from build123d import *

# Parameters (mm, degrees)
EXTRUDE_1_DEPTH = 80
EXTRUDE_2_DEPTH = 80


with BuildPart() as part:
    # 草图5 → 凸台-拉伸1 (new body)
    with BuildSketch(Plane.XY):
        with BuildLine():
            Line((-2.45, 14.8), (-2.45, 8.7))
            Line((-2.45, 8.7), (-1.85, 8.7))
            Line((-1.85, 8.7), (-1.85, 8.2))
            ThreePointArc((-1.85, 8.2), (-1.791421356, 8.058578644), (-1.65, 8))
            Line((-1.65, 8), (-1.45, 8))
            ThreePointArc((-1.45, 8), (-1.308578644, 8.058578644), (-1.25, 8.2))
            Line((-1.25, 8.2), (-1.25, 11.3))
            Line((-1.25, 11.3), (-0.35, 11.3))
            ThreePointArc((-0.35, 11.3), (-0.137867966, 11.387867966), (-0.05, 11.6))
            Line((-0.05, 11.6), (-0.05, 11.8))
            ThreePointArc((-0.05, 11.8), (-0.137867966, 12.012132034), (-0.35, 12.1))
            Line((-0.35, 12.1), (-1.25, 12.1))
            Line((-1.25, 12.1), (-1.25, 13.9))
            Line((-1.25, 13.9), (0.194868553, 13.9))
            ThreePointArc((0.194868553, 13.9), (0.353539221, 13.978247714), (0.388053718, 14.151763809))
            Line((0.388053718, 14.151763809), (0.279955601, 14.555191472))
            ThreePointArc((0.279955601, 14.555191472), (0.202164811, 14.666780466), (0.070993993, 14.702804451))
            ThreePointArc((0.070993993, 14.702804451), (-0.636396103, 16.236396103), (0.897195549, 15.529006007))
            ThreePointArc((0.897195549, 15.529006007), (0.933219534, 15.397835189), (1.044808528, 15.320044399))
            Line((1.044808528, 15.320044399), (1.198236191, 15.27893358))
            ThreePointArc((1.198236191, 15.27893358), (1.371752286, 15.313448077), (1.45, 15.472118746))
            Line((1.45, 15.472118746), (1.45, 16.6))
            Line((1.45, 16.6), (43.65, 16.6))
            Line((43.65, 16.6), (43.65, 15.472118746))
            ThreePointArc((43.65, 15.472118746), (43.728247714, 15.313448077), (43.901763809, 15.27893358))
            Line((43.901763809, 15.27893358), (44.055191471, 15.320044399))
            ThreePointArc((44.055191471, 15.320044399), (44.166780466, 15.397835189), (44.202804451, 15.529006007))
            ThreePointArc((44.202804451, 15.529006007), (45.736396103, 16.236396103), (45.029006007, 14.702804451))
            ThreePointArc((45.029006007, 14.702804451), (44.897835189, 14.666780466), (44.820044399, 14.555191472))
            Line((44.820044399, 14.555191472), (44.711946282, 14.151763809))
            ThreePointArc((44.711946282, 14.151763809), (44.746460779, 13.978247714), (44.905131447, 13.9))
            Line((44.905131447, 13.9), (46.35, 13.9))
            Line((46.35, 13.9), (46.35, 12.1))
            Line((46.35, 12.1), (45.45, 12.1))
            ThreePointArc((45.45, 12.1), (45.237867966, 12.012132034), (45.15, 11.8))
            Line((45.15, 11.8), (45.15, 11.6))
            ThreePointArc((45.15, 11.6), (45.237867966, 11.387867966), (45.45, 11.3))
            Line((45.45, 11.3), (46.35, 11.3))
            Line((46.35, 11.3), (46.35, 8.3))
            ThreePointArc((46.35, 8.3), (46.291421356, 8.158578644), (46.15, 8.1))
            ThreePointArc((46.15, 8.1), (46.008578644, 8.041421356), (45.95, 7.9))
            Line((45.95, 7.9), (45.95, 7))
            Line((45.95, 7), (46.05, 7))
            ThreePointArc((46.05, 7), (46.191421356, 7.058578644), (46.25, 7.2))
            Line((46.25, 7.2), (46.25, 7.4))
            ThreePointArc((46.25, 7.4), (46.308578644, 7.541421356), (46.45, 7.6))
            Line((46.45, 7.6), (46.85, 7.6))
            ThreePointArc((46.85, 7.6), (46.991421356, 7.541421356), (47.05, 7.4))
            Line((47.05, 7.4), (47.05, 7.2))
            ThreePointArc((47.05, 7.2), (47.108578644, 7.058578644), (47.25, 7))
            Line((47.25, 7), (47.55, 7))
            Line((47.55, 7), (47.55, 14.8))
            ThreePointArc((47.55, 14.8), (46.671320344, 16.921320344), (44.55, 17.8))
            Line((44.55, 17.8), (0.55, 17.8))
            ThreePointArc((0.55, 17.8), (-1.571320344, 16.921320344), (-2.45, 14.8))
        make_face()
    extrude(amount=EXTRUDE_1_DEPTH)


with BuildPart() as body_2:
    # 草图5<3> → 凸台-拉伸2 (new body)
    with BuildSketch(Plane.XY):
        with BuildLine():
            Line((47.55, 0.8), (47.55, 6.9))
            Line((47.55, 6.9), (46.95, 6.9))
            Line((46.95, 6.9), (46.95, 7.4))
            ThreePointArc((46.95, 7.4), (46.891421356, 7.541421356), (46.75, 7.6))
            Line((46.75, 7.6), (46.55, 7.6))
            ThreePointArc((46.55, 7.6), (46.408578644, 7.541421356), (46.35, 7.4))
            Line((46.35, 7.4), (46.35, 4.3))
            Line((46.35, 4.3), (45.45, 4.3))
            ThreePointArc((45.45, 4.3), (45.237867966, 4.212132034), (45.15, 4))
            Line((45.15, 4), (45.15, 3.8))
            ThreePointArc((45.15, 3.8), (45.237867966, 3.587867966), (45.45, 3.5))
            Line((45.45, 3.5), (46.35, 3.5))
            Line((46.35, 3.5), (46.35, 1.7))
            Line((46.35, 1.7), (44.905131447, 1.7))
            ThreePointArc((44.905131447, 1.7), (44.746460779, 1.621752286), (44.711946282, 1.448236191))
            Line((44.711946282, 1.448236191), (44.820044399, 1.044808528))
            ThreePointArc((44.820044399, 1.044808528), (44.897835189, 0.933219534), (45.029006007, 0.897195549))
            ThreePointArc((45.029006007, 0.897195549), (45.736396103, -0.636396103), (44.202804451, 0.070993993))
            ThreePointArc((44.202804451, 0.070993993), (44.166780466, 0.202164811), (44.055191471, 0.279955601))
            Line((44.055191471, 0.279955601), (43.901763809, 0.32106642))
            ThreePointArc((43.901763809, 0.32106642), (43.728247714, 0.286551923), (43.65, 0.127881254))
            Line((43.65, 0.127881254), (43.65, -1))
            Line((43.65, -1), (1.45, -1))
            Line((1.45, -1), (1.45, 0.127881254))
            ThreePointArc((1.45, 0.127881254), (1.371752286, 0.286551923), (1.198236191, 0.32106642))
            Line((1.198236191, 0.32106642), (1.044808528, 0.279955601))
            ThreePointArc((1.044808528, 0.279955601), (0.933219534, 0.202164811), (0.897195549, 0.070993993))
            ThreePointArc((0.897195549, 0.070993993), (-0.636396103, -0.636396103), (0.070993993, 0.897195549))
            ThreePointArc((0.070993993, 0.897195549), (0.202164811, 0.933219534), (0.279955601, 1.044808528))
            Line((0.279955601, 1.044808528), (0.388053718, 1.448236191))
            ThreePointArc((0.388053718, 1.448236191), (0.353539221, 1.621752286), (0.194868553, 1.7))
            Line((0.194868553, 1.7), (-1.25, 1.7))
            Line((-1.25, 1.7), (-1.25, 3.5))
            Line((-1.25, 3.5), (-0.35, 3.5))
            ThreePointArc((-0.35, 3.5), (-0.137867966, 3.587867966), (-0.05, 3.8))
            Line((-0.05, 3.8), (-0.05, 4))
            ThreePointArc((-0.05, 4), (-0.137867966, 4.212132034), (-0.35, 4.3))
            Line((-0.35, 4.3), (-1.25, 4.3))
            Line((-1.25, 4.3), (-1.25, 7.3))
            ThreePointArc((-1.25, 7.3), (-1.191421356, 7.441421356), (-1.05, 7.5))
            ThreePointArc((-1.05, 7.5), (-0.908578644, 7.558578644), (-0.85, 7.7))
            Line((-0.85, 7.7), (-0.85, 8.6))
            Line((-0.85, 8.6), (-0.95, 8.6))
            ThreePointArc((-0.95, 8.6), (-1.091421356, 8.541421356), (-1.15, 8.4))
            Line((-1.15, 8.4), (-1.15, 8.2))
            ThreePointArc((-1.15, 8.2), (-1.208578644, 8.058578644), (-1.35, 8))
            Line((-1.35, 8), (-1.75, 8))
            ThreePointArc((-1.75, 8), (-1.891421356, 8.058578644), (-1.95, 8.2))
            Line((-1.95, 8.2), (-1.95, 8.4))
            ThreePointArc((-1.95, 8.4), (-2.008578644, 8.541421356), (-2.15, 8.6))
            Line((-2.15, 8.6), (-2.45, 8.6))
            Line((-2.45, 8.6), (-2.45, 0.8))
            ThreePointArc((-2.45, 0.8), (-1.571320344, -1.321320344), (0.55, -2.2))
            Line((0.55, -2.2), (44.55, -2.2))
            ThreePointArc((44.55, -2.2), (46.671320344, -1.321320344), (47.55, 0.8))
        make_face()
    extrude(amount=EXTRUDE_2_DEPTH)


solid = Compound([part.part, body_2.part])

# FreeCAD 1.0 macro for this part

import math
import FreeCAD as App
import Part
import Sketcher
from FreeCAD import Vector
Q = App.Units.Quantity

doc = App.newDocument("Part")
body = doc.addObject("PartDesign::Body", "Body")

# Sketch on XY plane
sketch1 = doc.addObject("Sketcher::SketchObject", "Sketch")
body.addObject(sketch1)
sketch1.AttachmentSupport = (doc.XY_Plane, [""])
sketch1.MapMode = "FlatFace"
sketch1.addGeometry(Part.LineSegment(Vector(-2.45, 14.8, 0), Vector(-2.45, 8.7, 0)), False)
sketch1.addGeometry(Part.LineSegment(Vector(-2.45, 8.7, 0), Vector(-1.85, 8.7, 0)), False)
sketch1.addGeometry(Part.LineSegment(Vector(-1.85, 8.7, 0), Vector(-1.85, 8.2, 0)), False)
sketch1.addGeometry(Part.ArcOfCircle(Part.Circle(Vector(-1.65, 8.2, 0), Vector(0, 0, 1), 0.2), math.radians(-180), math.radians(-90)), False)
sketch1.addGeometry(Part.LineSegment(Vector(-1.65, 8, 0), Vector(-1.45, 8, 0)), False)
sketch1.addGeometry(Part.ArcOfCircle(Part.Circle(Vector(-1.45, 8.2, 0), Vector(0, 0, 1), 0.2), math.radians(-90), math.radians(0)), False)
sketch1.addGeometry(Part.LineSegment(Vector(-1.25, 8.2, 0), Vector(-1.25, 11.3, 0)), False)
sketch1.addGeometry(Part.LineSegment(Vector(-1.25, 11.3, 0), Vector(-0.35, 11.3, 0)), False)
sketch1.addGeometry(Part.ArcOfCircle(Part.Circle(Vector(-0.35, 11.6, 0), Vector(0, 0, 1), 0.3), math.radians(-90), math.radians(0)), False)
sketch1.addGeometry(Part.LineSegment(Vector(-0.05, 11.6, 0), Vector(-0.05, 11.8, 0)), False)
sketch1.addGeometry(Part.ArcOfCircle(Part.Circle(Vector(-0.35, 11.8, 0), Vector(0, 0, 1), 0.3), math.radians(0), math.radians(90)), False)
sketch1.addGeometry(Part.LineSegment(Vector(-0.35, 12.1, 0), Vector(-1.25, 12.1, 0)), False)
sketch1.addGeometry(Part.LineSegment(Vector(-1.25, 12.1, 0), Vector(-1.25, 13.9, 0)), False)
sketch1.addGeometry(Part.LineSegment(Vector(-1.25, 13.9, 0), Vector(0.19, 13.9, 0)), False)
sketch1.addGeometry(Part.ArcOfCircle(Part.Circle(Vector(0.19, 14.1, 0), Vector(0, 0, 1), 0.2), math.radians(-90), math.radians(15)), False)
sketch1.addGeometry(Part.LineSegment(Vector(0.39, 14.15, 0), Vector(0.28, 14.56, 0)), False)
sketch1.addGeometry(Part.ArcOfCircle(Part.Circle(Vector(0.09, 14.5, 0), Vector(0, 0, 1), 0.2), math.radians(15), math.radians(95)), False)
sketch1.addGeometry(Part.ArcOfCircle(Part.Circle(Vector(0, 15.6, 0), Vector(0, 0, 1), 0.9), math.radians(-5), math.radians(275)), False)
sketch1.addGeometry(Part.ArcOfCircle(Part.Circle(Vector(1.1, 15.51, 0), Vector(0, 0, 1), 0.2), math.radians(175), math.radians(255)), False)
sketch1.addGeometry(Part.LineSegment(Vector(1.04, 15.32, 0), Vector(1.2, 15.28, 0)), False)
sketch1.addGeometry(Part.ArcOfCircle(Part.Circle(Vector(1.25, 15.47, 0), Vector(0, 0, 1), 0.2), math.radians(-105), math.radians(0)), False)
sketch1.addGeometry(Part.LineSegment(Vector(1.45, 15.47, 0), Vector(1.45, 16.6, 0)), False)
sketch1.addGeometry(Part.LineSegment(Vector(1.45, 16.6, 0), Vector(43.65, 16.6, 0)), False)
sketch1.addGeometry(Part.LineSegment(Vector(43.65, 16.6, 0), Vector(43.65, 15.47, 0)), False)
sketch1.addGeometry(Part.ArcOfCircle(Part.Circle(Vector(43.85, 15.47, 0), Vector(0, 0, 1), 0.2), math.radians(180), math.radians(285)), False)
sketch1.addGeometry(Part.LineSegment(Vector(43.9, 15.28, 0), Vector(44.06, 15.32, 0)), False)
sketch1.addGeometry(Part.ArcOfCircle(Part.Circle(Vector(44, 15.51, 0), Vector(0, 0, 1), 0.2), math.radians(-75), math.radians(5)), False)
sketch1.addGeometry(Part.ArcOfCircle(Part.Circle(Vector(45.1, 15.6, 0), Vector(0, 0, 1), 0.9), math.radians(-95), math.radians(185)), False)
sketch1.addGeometry(Part.ArcOfCircle(Part.Circle(Vector(45.01, 14.5, 0), Vector(0, 0, 1), 0.2), math.radians(85), math.radians(165)), False)
sketch1.addGeometry(Part.LineSegment(Vector(44.82, 14.56, 0), Vector(44.71, 14.15, 0)), False)
sketch1.addGeometry(Part.ArcOfCircle(Part.Circle(Vector(44.91, 14.1, 0), Vector(0, 0, 1), 0.2), math.radians(165), math.radians(270)), False)
sketch1.addGeometry(Part.LineSegment(Vector(44.91, 13.9, 0), Vector(46.35, 13.9, 0)), False)
sketch1.addGeometry(Part.LineSegment(Vector(46.35, 13.9, 0), Vector(46.35, 12.1, 0)), False)
sketch1.addGeometry(Part.LineSegment(Vector(46.35, 12.1, 0), Vector(45.45, 12.1, 0)), False)
sketch1.addGeometry(Part.ArcOfCircle(Part.Circle(Vector(45.45, 11.8, 0), Vector(0, 0, 1), 0.3), math.radians(90), math.radians(180)), False)
sketch1.addGeometry(Part.LineSegment(Vector(45.15, 11.8, 0), Vector(45.15, 11.6, 0)), False)
sketch1.addGeometry(Part.ArcOfCircle(Part.Circle(Vector(45.45, 11.6, 0), Vector(0, 0, 1), 0.3), math.radians(-180), math.radians(-90)), False)
sketch1.addGeometry(Part.LineSegment(Vector(45.45, 11.3, 0), Vector(46.35, 11.3, 0)), False)
sketch1.addGeometry(Part.LineSegment(Vector(46.35, 11.3, 0), Vector(46.35, 8.3, 0)), False)
sketch1.addGeometry(Part.ArcOfCircle(Part.Circle(Vector(46.15, 8.3, 0), Vector(0, 0, 1), 0.2), math.radians(-90), math.radians(0)), False)
sketch1.addGeometry(Part.ArcOfCircle(Part.Circle(Vector(46.15, 7.9, 0), Vector(0, 0, 1), 0.2), math.radians(90), math.radians(180)), False)
sketch1.addGeometry(Part.LineSegment(Vector(45.95, 7.9, 0), Vector(45.95, 7, 0)), False)
sketch1.addGeometry(Part.LineSegment(Vector(45.95, 7, 0), Vector(46.05, 7, 0)), False)
sketch1.addGeometry(Part.ArcOfCircle(Part.Circle(Vector(46.05, 7.2, 0), Vector(0, 0, 1), 0.2), math.radians(-90), math.radians(0)), False)
sketch1.addGeometry(Part.LineSegment(Vector(46.25, 7.2, 0), Vector(46.25, 7.4, 0)), False)
sketch1.addGeometry(Part.ArcOfCircle(Part.Circle(Vector(46.45, 7.4, 0), Vector(0, 0, 1), 0.2), math.radians(90), math.radians(180)), False)
sketch1.addGeometry(Part.LineSegment(Vector(46.45, 7.6, 0), Vector(46.85, 7.6, 0)), False)
sketch1.addGeometry(Part.ArcOfCircle(Part.Circle(Vector(46.85, 7.4, 0), Vector(0, 0, 1), 0.2), math.radians(0), math.radians(90)), False)
sketch1.addGeometry(Part.LineSegment(Vector(47.05, 7.4, 0), Vector(47.05, 7.2, 0)), False)
sketch1.addGeometry(Part.ArcOfCircle(Part.Circle(Vector(47.25, 7.2, 0), Vector(0, 0, 1), 0.2), math.radians(-180), math.radians(-90)), False)
sketch1.addGeometry(Part.LineSegment(Vector(47.25, 7, 0), Vector(47.55, 7, 0)), False)
sketch1.addGeometry(Part.LineSegment(Vector(47.55, 7, 0), Vector(47.55, 14.8, 0)), False)
sketch1.addGeometry(Part.ArcOfCircle(Part.Circle(Vector(44.55, 14.8, 0), Vector(0, 0, 1), 3), math.radians(0), math.radians(90)), False)
sketch1.addGeometry(Part.LineSegment(Vector(44.55, 17.8, 0), Vector(0.55, 17.8, 0)), False)
sketch1.addGeometry(Part.ArcOfCircle(Part.Circle(Vector(0.55, 14.8, 0), Vector(0, 0, 1), 3), math.radians(90), math.radians(180)), False)
sketch1.addConstraint(Sketcher.Constraint("Coincident", 0, 2, 1, 1))
sketch1.addConstraint(Sketcher.Constraint("Coincident", 1, 2, 2, 1))
sketch1.addConstraint(Sketcher.Constraint("Tangent", 2, 2, 3, 1))
sketch1.addConstraint(Sketcher.Constraint("Tangent", 3, 2, 4, 1))
sketch1.addConstraint(Sketcher.Constraint("Tangent", 4, 2, 5, 1))
sketch1.addConstraint(Sketcher.Constraint("Tangent", 5, 2, 6, 1))
sketch1.addConstraint(Sketcher.Constraint("Coincident", 6, 2, 7, 1))
sketch1.addConstraint(Sketcher.Constraint("Tangent", 7, 2, 8, 1))
sketch1.addConstraint(Sketcher.Constraint("Tangent", 8, 2, 9, 1))
sketch1.addConstraint(Sketcher.Constraint("Tangent", 9, 2, 10, 1))
sketch1.addConstraint(Sketcher.Constraint("Tangent", 10, 2, 11, 1))
sketch1.addConstraint(Sketcher.Constraint("Coincident", 11, 2, 12, 1))
sketch1.addConstraint(Sketcher.Constraint("Coincident", 12, 2, 13, 1))
sketch1.addConstraint(Sketcher.Constraint("Tangent", 13, 2, 14, 1))
sketch1.addConstraint(Sketcher.Constraint("Tangent", 14, 2, 15, 1))
sketch1.addConstraint(Sketcher.Constraint("Tangent", 15, 2, 16, 1))
sketch1.addConstraint(Sketcher.Constraint("Tangent", 16, 2, 17, 2))
sketch1.addConstraint(Sketcher.Constraint("Tangent", 17, 1, 18, 1))
sketch1.addConstraint(Sketcher.Constraint("Tangent", 18, 2, 19, 1))
sketch1.addConstraint(Sketcher.Constraint("Tangent", 19, 2, 20, 1))
sketch1.addConstraint(Sketcher.Constraint("Tangent", 20, 2, 21, 1))
sketch1.addConstraint(Sketcher.Constraint("Coincident", 21, 2, 22, 1))
sketch1.addConstraint(Sketcher.Constraint("Coincident", 22, 2, 23, 1))
sketch1.addConstraint(Sketcher.Constraint("Tangent", 23, 2, 24, 1))
sketch1.addConstraint(Sketcher.Constraint("Tangent", 24, 2, 25, 1))
sketch1.addConstraint(Sketcher.Constraint("Tangent", 25, 2, 26, 1))
sketch1.addConstraint(Sketcher.Constraint("Tangent", 26, 2, 27, 2))
sketch1.addConstraint(Sketcher.Constraint("Tangent", 27, 1, 28, 1))
sketch1.addConstraint(Sketcher.Constraint("Tangent", 28, 2, 29, 1))
sketch1.addConstraint(Sketcher.Constraint("Tangent", 29, 2, 30, 1))
sketch1.addConstraint(Sketcher.Constraint("Tangent", 30, 2, 31, 1))
sketch1.addConstraint(Sketcher.Constraint("Coincident", 31, 2, 32, 1))
sketch1.addConstraint(Sketcher.Constraint("Coincident", 32, 2, 33, 1))
sketch1.addConstraint(Sketcher.Constraint("Tangent", 33, 2, 34, 1))
sketch1.addConstraint(Sketcher.Constraint("Tangent", 34, 2, 35, 1))
sketch1.addConstraint(Sketcher.Constraint("Tangent", 35, 2, 36, 1))
sketch1.addConstraint(Sketcher.Constraint("Tangent", 36, 2, 37, 1))
sketch1.addConstraint(Sketcher.Constraint("Coincident", 37, 2, 38, 1))
sketch1.addConstraint(Sketcher.Constraint("Tangent", 38, 2, 39, 2))
sketch1.addConstraint(Sketcher.Constraint("Tangent", 39, 1, 40, 1))
sketch1.addConstraint(Sketcher.Constraint("Tangent", 40, 2, 41, 1))
sketch1.addConstraint(Sketcher.Constraint("Coincident", 41, 2, 42, 1))
sketch1.addConstraint(Sketcher.Constraint("Tangent", 42, 2, 43, 1))
sketch1.addConstraint(Sketcher.Constraint("Tangent", 43, 2, 44, 1))
sketch1.addConstraint(Sketcher.Constraint("Tangent", 44, 2, 45, 2))
sketch1.addConstraint(Sketcher.Constraint("Tangent", 45, 1, 46, 1))
sketch1.addConstraint(Sketcher.Constraint("Tangent", 46, 2, 47, 2))
sketch1.addConstraint(Sketcher.Constraint("Tangent", 47, 1, 48, 1))
sketch1.addConstraint(Sketcher.Constraint("Tangent", 48, 2, 49, 1))
sketch1.addConstraint(Sketcher.Constraint("Tangent", 49, 2, 50, 1))
sketch1.addConstraint(Sketcher.Constraint("Coincident", 50, 2, 51, 1))
sketch1.addConstraint(Sketcher.Constraint("Tangent", 51, 2, 52, 1))
sketch1.addConstraint(Sketcher.Constraint("Tangent", 52, 2, 53, 1))
sketch1.addConstraint(Sketcher.Constraint("Tangent", 53, 2, 54, 1))
sketch1.addConstraint(Sketcher.Constraint("Tangent", 54, 2, 0, 1))
sketch1.addConstraint(Sketcher.Constraint("Vertical", 0))
sketch1.addConstraint(Sketcher.Constraint("Horizontal", 1))
sketch1.addConstraint(Sketcher.Constraint("Vertical", 2))
sketch1.addConstraint(Sketcher.Constraint("Horizontal", 4))
sketch1.addConstraint(Sketcher.Constraint("Vertical", 6))
sketch1.addConstraint(Sketcher.Constraint("Horizontal", 7))
sketch1.addConstraint(Sketcher.Constraint("Vertical", 9))
sketch1.addConstraint(Sketcher.Constraint("Horizontal", 11))
sketch1.addConstraint(Sketcher.Constraint("Vertical", 12))
sketch1.addConstraint(Sketcher.Constraint("Horizontal", 13))
sketch1.addConstraint(Sketcher.Constraint("Vertical", 21))
sketch1.addConstraint(Sketcher.Constraint("Horizontal", 22))
sketch1.addConstraint(Sketcher.Constraint("Vertical", 23))
sketch1.addConstraint(Sketcher.Constraint("Horizontal", 31))
sketch1.addConstraint(Sketcher.Constraint("Vertical", 32))
sketch1.addConstraint(Sketcher.Constraint("Horizontal", 33))
sketch1.addConstraint(Sketcher.Constraint("Vertical", 35))
sketch1.addConstraint(Sketcher.Constraint("Horizontal", 37))
sketch1.addConstraint(Sketcher.Constraint("Vertical", 38))
sketch1.addConstraint(Sketcher.Constraint("Vertical", 41))
sketch1.addConstraint(Sketcher.Constraint("Horizontal", 42))
sketch1.addConstraint(Sketcher.Constraint("Vertical", 44))
sketch1.addConstraint(Sketcher.Constraint("Horizontal", 46))
sketch1.addConstraint(Sketcher.Constraint("Vertical", 48))
sketch1.addConstraint(Sketcher.Constraint("Horizontal", 50))
sketch1.addConstraint(Sketcher.Constraint("Vertical", 51))
sketch1.addConstraint(Sketcher.Constraint("Horizontal", 53))
sketch1.addConstraint(Sketcher.Constraint("Equal", 3, 5))
sketch1.addConstraint(Sketcher.Constraint("Equal", 8, 10))
sketch1.addConstraint(Sketcher.Constraint("Equal", 5, 14))
sketch1.addConstraint(Sketcher.Constraint("Equal", 14, 16))
sketch1.addConstraint(Sketcher.Constraint("Equal", 16, 18))
sketch1.addConstraint(Sketcher.Constraint("Equal", 18, 20))
sketch1.addConstraint(Sketcher.Constraint("Equal", 20, 24))
sketch1.addConstraint(Sketcher.Constraint("Equal", 24, 26))
sketch1.addConstraint(Sketcher.Constraint("Equal", 17, 27))
sketch1.addConstraint(Sketcher.Constraint("Equal", 26, 28))
sketch1.addConstraint(Sketcher.Constraint("Equal", 28, 30))
sketch1.addConstraint(Sketcher.Constraint("Equal", 10, 34))
sketch1.addConstraint(Sketcher.Constraint("Equal", 34, 36))
sketch1.addConstraint(Sketcher.Constraint("Equal", 30, 39))
sketch1.addConstraint(Sketcher.Constraint("Equal", 39, 40))
sketch1.addConstraint(Sketcher.Constraint("Equal", 40, 43))
sketch1.addConstraint(Sketcher.Constraint("Equal", 43, 45))
sketch1.addConstraint(Sketcher.Constraint("Equal", 45, 47))
sketch1.addConstraint(Sketcher.Constraint("Equal", 47, 49))
sketch1.addConstraint(Sketcher.Constraint("Equal", 52, 54))
sketch1.addConstraint(Sketcher.Constraint("PointOnObject", 17, 3, -2))
sketch1.addConstraint(Sketcher.Constraint("Perpendicular", 15, 25))
sketch1.addConstraint(Sketcher.Constraint("Perpendicular", 19, 29))
sketch1.addConstraint(Sketcher.Constraint("Horizontal", 20, 3, 24, 3))
sketch1.addConstraint(Sketcher.Constraint("Horizontal", 18, 3, 26, 3))
sketch1.addConstraint(Sketcher.Constraint("Horizontal", 17, 3, 27, 3))
sketch1.addConstraint(Sketcher.Constraint("Horizontal", 16, 3, 28, 3))
sketch1.addConstraint(Sketcher.Constraint("Horizontal", 14, 3, 30, 3))
sketch1.addConstraint(Sketcher.Constraint("Horizontal", 10, 3, 34, 3))
sketch1.addConstraint(Sketcher.Constraint("Horizontal", 8, 3, 36, 3))
sketch1.addConstraint(Sketcher.Constraint("Horizontal", 43, 3, 49, 3))
sketch1.addConstraint(Sketcher.Constraint("Horizontal", 19, 2, 24, 2))
sketch1.addConstraint(Sketcher.Constraint("Vertical", 39, 3, 40, 3))
sketch1.addConstraint(Sketcher.Constraint("Vertical", 6, 2, 11, 2))
sketch1.addConstraint(Sketcher.Constraint("Vertical", 32, 2, 37, 2))
sketch1.addConstraint(Sketcher.Constraint("Equal", 13, 31))
sketch1.addConstraint(Sketcher.Constraint("Equal", 11, 33))
sketch1.addConstraint(Sketcher.Constraint("Equal", 4, 9))
sketch1.addConstraint(Sketcher.Constraint("Equal", 37, 41))
sketch1.addConstraint(Sketcher.Constraint("Equal", 35, 44))
sketch1.addConstraint(Sketcher.Constraint("Radius", 52, 3.0))
sketch1.addConstraint(Sketcher.Constraint("Radius", 3, 0.2))
sketch1.addConstraint(Sketcher.Constraint("Radius", 8, 0.3))
sketch1.addConstraint(Sketcher.Constraint("Radius", 17, 0.9))
sketch1.addConstraint(Sketcher.Constraint("DistanceX", 53, 2, 53, 1, 44.0))
sketch1.addConstraint(Sketcher.Constraint("DistanceY", 38, 2, 38, 1, 3.0))
sketch1.addConstraint(Sketcher.Constraint("Angle", 15, Q("105 deg")))
sketch1.addConstraint(Sketcher.Constraint("DistanceX", 1, 1, 1, 2, 0.6))
sketch1.addConstraint(Sketcher.Constraint("DistanceX", 4, 1, 4, 2, 0.2))
sketch1.addConstraint(Sketcher.Constraint("DistanceX", 7, 1, 7, 2, 0.9))
sketch1.addConstraint(Sketcher.Constraint("DistanceX", 22, 1, 22, 2, 42.2))
sketch1.addConstraint(Sketcher.Constraint("DistanceX", 42, 1, 42, 2, 0.1))
sketch1.addConstraint(Sketcher.Constraint("DistanceX", 46, 1, 46, 2, 0.4))
sketch1.addConstraint(Sketcher.Constraint("DistanceX", 50, 1, 50, 2, 0.3))
sketch1.addConstraint(Sketcher.Constraint("DistanceY", 0, 2, 0, 1, 6.1))
sketch1.addConstraint(Sketcher.Constraint("DistanceY", 2, 2, 2, 1, 0.5))
sketch1.addConstraint(Sketcher.Constraint("DistanceY", 6, 1, 6, 2, 3.1))
sketch1.addConstraint(Sketcher.Constraint("DistanceY", 12, 1, 12, 2, 1.8))
sketch1.addConstraint(Sketcher.Constraint("DistanceY", -1, 1, 3, 2, 8.0))
sketch1.addConstraint(Sketcher.Constraint("DistanceY", -1, 1, 17, 3, 15.6))
sketch1.addConstraint(Sketcher.Constraint("DistanceX", -1, 1, 27, 3, 45.1))
sketch1.addConstraint(Sketcher.Constraint("DistanceY", -1, 1, 21, 2, 16.6))
sketch1.addConstraint(Sketcher.Constraint("DistanceX", 13, 1, 13, 2, 1.444869))
sketch1.addConstraint(Sketcher.Constraint("DistanceY", 21, 1, 21, 2, 1.127881))
pad1 = doc.addObject("PartDesign::Pad", "Pad")
body.addObject(pad1)
pad1.Profile = sketch1
pad1.Length = 80
body2 = doc.addObject("PartDesign::Body", "Body001")

# Sketch on XY plane
sketch2 = doc.addObject("Sketcher::SketchObject", "Sketch001")
body2.addObject(sketch2)
sketch2.AttachmentSupport = (doc.getObject("XY_Plane001"), [""])
sketch2.MapMode = "FlatFace"
sketch2.addGeometry(Part.LineSegment(Vector(47.55, 0.8, 0), Vector(47.55, 6.9, 0)), False)
sketch2.addGeometry(Part.LineSegment(Vector(47.55, 6.9, 0), Vector(46.95, 6.9, 0)), False)
sketch2.addGeometry(Part.LineSegment(Vector(46.95, 6.9, 0), Vector(46.95, 7.4, 0)), False)
sketch2.addGeometry(Part.ArcOfCircle(Part.Circle(Vector(46.75, 7.4, 0), Vector(0, 0, 1), 0.2), math.radians(0), math.radians(90)), False)
sketch2.addGeometry(Part.LineSegment(Vector(46.75, 7.6, 0), Vector(46.55, 7.6, 0)), False)
sketch2.addGeometry(Part.ArcOfCircle(Part.Circle(Vector(46.55, 7.4, 0), Vector(0, 0, 1), 0.2), math.radians(90), math.radians(180)), False)
sketch2.addGeometry(Part.LineSegment(Vector(46.35, 7.4, 0), Vector(46.35, 4.3, 0)), False)
sketch2.addGeometry(Part.LineSegment(Vector(46.35, 4.3, 0), Vector(45.45, 4.3, 0)), False)
sketch2.addGeometry(Part.ArcOfCircle(Part.Circle(Vector(45.45, 4, 0), Vector(0, 0, 1), 0.3), math.radians(90), math.radians(180)), False)
sketch2.addGeometry(Part.LineSegment(Vector(45.15, 4, 0), Vector(45.15, 3.8, 0)), False)
sketch2.addGeometry(Part.ArcOfCircle(Part.Circle(Vector(45.45, 3.8, 0), Vector(0, 0, 1), 0.3), math.radians(-180), math.radians(-90)), False)
sketch2.addGeometry(Part.LineSegment(Vector(45.45, 3.5, 0), Vector(46.35, 3.5, 0)), False)
sketch2.addGeometry(Part.LineSegment(Vector(46.35, 3.5, 0), Vector(46.35, 1.7, 0)), False)
sketch2.addGeometry(Part.LineSegment(Vector(46.35, 1.7, 0), Vector(44.91, 1.7, 0)), False)
sketch2.addGeometry(Part.ArcOfCircle(Part.Circle(Vector(44.91, 1.5, 0), Vector(0, 0, 1), 0.2), math.radians(90), math.radians(195)), False)
sketch2.addGeometry(Part.LineSegment(Vector(44.71, 1.45, 0), Vector(44.82, 1.04, 0)), False)
sketch2.addGeometry(Part.ArcOfCircle(Part.Circle(Vector(45.01, 1.1, 0), Vector(0, 0, 1), 0.2), math.radians(-165), math.radians(-85)), False)
sketch2.addGeometry(Part.ArcOfCircle(Part.Circle(Vector(45.1, 0, 0), Vector(0, 0, 1), 0.9), math.radians(175), math.radians(455)), False)
sketch2.addGeometry(Part.ArcOfCircle(Part.Circle(Vector(44, 0.09, 0), Vector(0, 0, 1), 0.2), math.radians(-5), math.radians(75)), False)
sketch2.addGeometry(Part.LineSegment(Vector(44.06, 0.28, 0), Vector(43.9, 0.32, 0)), False)
sketch2.addGeometry(Part.ArcOfCircle(Part.Circle(Vector(43.85, 0.13, 0), Vector(0, 0, 1), 0.2), math.radians(75), math.radians(180)), False)
sketch2.addGeometry(Part.LineSegment(Vector(43.65, 0.13, 0), Vector(43.65, -1, 0)), False)
sketch2.addGeometry(Part.LineSegment(Vector(43.65, -1, 0), Vector(1.45, -1, 0)), False)
sketch2.addGeometry(Part.LineSegment(Vector(1.45, -1, 0), Vector(1.45, 0.13, 0)), False)
sketch2.addGeometry(Part.ArcOfCircle(Part.Circle(Vector(1.25, 0.13, 0), Vector(0, 0, 1), 0.2), math.radians(0), math.radians(105)), False)
sketch2.addGeometry(Part.LineSegment(Vector(1.2, 0.32, 0), Vector(1.04, 0.28, 0)), False)
sketch2.addGeometry(Part.ArcOfCircle(Part.Circle(Vector(1.1, 0.09, 0), Vector(0, 0, 1), 0.2), math.radians(105), math.radians(185)), False)
sketch2.addGeometry(Part.ArcOfCircle(Part.Circle(Vector(0, 0, 0), Vector(0, 0, 1), 0.9), math.radians(85), math.radians(365)), False)
sketch2.addGeometry(Part.ArcOfCircle(Part.Circle(Vector(0.09, 1.1, 0), Vector(0, 0, 1), 0.2), math.radians(-95), math.radians(-15)), False)
sketch2.addGeometry(Part.LineSegment(Vector(0.28, 1.04, 0), Vector(0.39, 1.45, 0)), False)
sketch2.addGeometry(Part.ArcOfCircle(Part.Circle(Vector(0.19, 1.5, 0), Vector(0, 0, 1), 0.2), math.radians(-15), math.radians(90)), False)
sketch2.addGeometry(Part.LineSegment(Vector(0.19, 1.7, 0), Vector(-1.25, 1.7, 0)), False)
sketch2.addGeometry(Part.LineSegment(Vector(-1.25, 1.7, 0), Vector(-1.25, 3.5, 0)), False)
sketch2.addGeometry(Part.LineSegment(Vector(-1.25, 3.5, 0), Vector(-0.35, 3.5, 0)), False)
sketch2.addGeometry(Part.ArcOfCircle(Part.Circle(Vector(-0.35, 3.8, 0), Vector(0, 0, 1), 0.3), math.radians(-90), math.radians(0)), False)
sketch2.addGeometry(Part.LineSegment(Vector(-0.05, 3.8, 0), Vector(-0.05, 4, 0)), False)
sketch2.addGeometry(Part.ArcOfCircle(Part.Circle(Vector(-0.35, 4, 0), Vector(0, 0, 1), 0.3), math.radians(0), math.radians(90)), False)
sketch2.addGeometry(Part.LineSegment(Vector(-0.35, 4.3, 0), Vector(-1.25, 4.3, 0)), False)
sketch2.addGeometry(Part.LineSegment(Vector(-1.25, 4.3, 0), Vector(-1.25, 7.3, 0)), False)
sketch2.addGeometry(Part.ArcOfCircle(Part.Circle(Vector(-1.05, 7.3, 0), Vector(0, 0, 1), 0.2), math.radians(90), math.radians(180)), False)
sketch2.addGeometry(Part.ArcOfCircle(Part.Circle(Vector(-1.05, 7.7, 0), Vector(0, 0, 1), 0.2), math.radians(-90), math.radians(0)), False)
sketch2.addGeometry(Part.LineSegment(Vector(-0.85, 7.7, 0), Vector(-0.85, 8.6, 0)), False)
sketch2.addGeometry(Part.LineSegment(Vector(-0.85, 8.6, 0), Vector(-0.95, 8.6, 0)), False)
sketch2.addGeometry(Part.ArcOfCircle(Part.Circle(Vector(-0.95, 8.4, 0), Vector(0, 0, 1), 0.2), math.radians(90), math.radians(180)), False)
sketch2.addGeometry(Part.LineSegment(Vector(-1.15, 8.4, 0), Vector(-1.15, 8.2, 0)), False)
sketch2.addGeometry(Part.ArcOfCircle(Part.Circle(Vector(-1.35, 8.2, 0), Vector(0, 0, 1), 0.2), math.radians(-90), math.radians(0)), False)
sketch2.addGeometry(Part.LineSegment(Vector(-1.35, 8, 0), Vector(-1.75, 8, 0)), False)
sketch2.addGeometry(Part.ArcOfCircle(Part.Circle(Vector(-1.75, 8.2, 0), Vector(0, 0, 1), 0.2), math.radians(-180), math.radians(-90)), False)
sketch2.addGeometry(Part.LineSegment(Vector(-1.95, 8.2, 0), Vector(-1.95, 8.4, 0)), False)
sketch2.addGeometry(Part.ArcOfCircle(Part.Circle(Vector(-2.15, 8.4, 0), Vector(0, 0, 1), 0.2), math.radians(0), math.radians(90)), False)
sketch2.addGeometry(Part.LineSegment(Vector(-2.15, 8.6, 0), Vector(-2.45, 8.6, 0)), False)
sketch2.addGeometry(Part.LineSegment(Vector(-2.45, 8.6, 0), Vector(-2.45, 0.8, 0)), False)
sketch2.addGeometry(Part.ArcOfCircle(Part.Circle(Vector(0.55, 0.8, 0), Vector(0, 0, 1), 3), math.radians(180), math.radians(270)), False)
sketch2.addGeometry(Part.LineSegment(Vector(0.55, -2.2, 0), Vector(44.55, -2.2, 0)), False)
sketch2.addGeometry(Part.ArcOfCircle(Part.Circle(Vector(44.55, 0.8, 0), Vector(0, 0, 1), 3), math.radians(-90), math.radians(0)), False)
sketch2.addConstraint(Sketcher.Constraint("Coincident", 0, 2, 1, 1))
sketch2.addConstraint(Sketcher.Constraint("Coincident", 1, 2, 2, 1))
sketch2.addConstraint(Sketcher.Constraint("Tangent", 2, 2, 3, 1))
sketch2.addConstraint(Sketcher.Constraint("Tangent", 3, 2, 4, 1))
sketch2.addConstraint(Sketcher.Constraint("Tangent", 4, 2, 5, 1))
sketch2.addConstraint(Sketcher.Constraint("Tangent", 5, 2, 6, 1))
sketch2.addConstraint(Sketcher.Constraint("Coincident", 6, 2, 7, 1))
sketch2.addConstraint(Sketcher.Constraint("Tangent", 7, 2, 8, 1))
sketch2.addConstraint(Sketcher.Constraint("Tangent", 8, 2, 9, 1))
sketch2.addConstraint(Sketcher.Constraint("Tangent", 9, 2, 10, 1))
sketch2.addConstraint(Sketcher.Constraint("Tangent", 10, 2, 11, 1))
sketch2.addConstraint(Sketcher.Constraint("Coincident", 11, 2, 12, 1))
sketch2.addConstraint(Sketcher.Constraint("Coincident", 12, 2, 13, 1))
sketch2.addConstraint(Sketcher.Constraint("Tangent", 13, 2, 14, 1))
sketch2.addConstraint(Sketcher.Constraint("Tangent", 14, 2, 15, 1))
sketch2.addConstraint(Sketcher.Constraint("Tangent", 15, 2, 16, 1))
sketch2.addConstraint(Sketcher.Constraint("Tangent", 16, 2, 17, 2))
sketch2.addConstraint(Sketcher.Constraint("Tangent", 17, 1, 18, 1))
sketch2.addConstraint(Sketcher.Constraint("Tangent", 18, 2, 19, 1))
sketch2.addConstraint(Sketcher.Constraint("Tangent", 19, 2, 20, 1))
sketch2.addConstraint(Sketcher.Constraint("Tangent", 20, 2, 21, 1))
sketch2.addConstraint(Sketcher.Constraint("Coincident", 21, 2, 22, 1))
sketch2.addConstraint(Sketcher.Constraint("Coincident", 22, 2, 23, 1))
sketch2.addConstraint(Sketcher.Constraint("Tangent", 23, 2, 24, 1))
sketch2.addConstraint(Sketcher.Constraint("Tangent", 24, 2, 25, 1))
sketch2.addConstraint(Sketcher.Constraint("Tangent", 25, 2, 26, 1))
sketch2.addConstraint(Sketcher.Constraint("Tangent", 26, 2, 27, 2))
sketch2.addConstraint(Sketcher.Constraint("Tangent", 27, 1, 28, 1))
sketch2.addConstraint(Sketcher.Constraint("Tangent", 28, 2, 29, 1))
sketch2.addConstraint(Sketcher.Constraint("Tangent", 29, 2, 30, 1))
sketch2.addConstraint(Sketcher.Constraint("Tangent", 30, 2, 31, 1))
sketch2.addConstraint(Sketcher.Constraint("Coincident", 31, 2, 32, 1))
sketch2.addConstraint(Sketcher.Constraint("Coincident", 32, 2, 33, 1))
sketch2.addConstraint(Sketcher.Constraint("Tangent", 33, 2, 34, 1))
sketch2.addConstraint(Sketcher.Constraint("Tangent", 34, 2, 35, 1))
sketch2.addConstraint(Sketcher.Constraint("Tangent", 35, 2, 36, 1))
sketch2.addConstraint(Sketcher.Constraint("Tangent", 36, 2, 37, 1))
sketch2.addConstraint(Sketcher.Constraint("Coincident", 37, 2, 38, 1))
sketch2.addConstraint(Sketcher.Constraint("Tangent", 38, 2, 39, 2))
sketch2.addConstraint(Sketcher.Constraint("Tangent", 39, 1, 40, 1))
sketch2.addConstraint(Sketcher.Constraint("Tangent", 40, 2, 41, 1))
sketch2.addConstraint(Sketcher.Constraint("Coincident", 41, 2, 42, 1))
sketch2.addConstraint(Sketcher.Constraint("Tangent", 42, 2, 43, 1))
sketch2.addConstraint(Sketcher.Constraint("Tangent", 43, 2, 44, 1))
sketch2.addConstraint(Sketcher.Constraint("Tangent", 44, 2, 45, 2))
sketch2.addConstraint(Sketcher.Constraint("Tangent", 45, 1, 46, 1))
sketch2.addConstraint(Sketcher.Constraint("Tangent", 46, 2, 47, 2))
sketch2.addConstraint(Sketcher.Constraint("Tangent", 47, 1, 48, 1))
sketch2.addConstraint(Sketcher.Constraint("Tangent", 48, 2, 49, 1))
sketch2.addConstraint(Sketcher.Constraint("Tangent", 49, 2, 50, 1))
sketch2.addConstraint(Sketcher.Constraint("Coincident", 50, 2, 51, 1))
sketch2.addConstraint(Sketcher.Constraint("Tangent", 51, 2, 52, 1))
sketch2.addConstraint(Sketcher.Constraint("Tangent", 52, 2, 53, 1))
sketch2.addConstraint(Sketcher.Constraint("Tangent", 53, 2, 54, 1))
sketch2.addConstraint(Sketcher.Constraint("Tangent", 54, 2, 0, 1))
sketch2.addConstraint(Sketcher.Constraint("Vertical", 0))
sketch2.addConstraint(Sketcher.Constraint("Horizontal", 1))
sketch2.addConstraint(Sketcher.Constraint("Vertical", 2))
sketch2.addConstraint(Sketcher.Constraint("Horizontal", 4))
sketch2.addConstraint(Sketcher.Constraint("Vertical", 6))
sketch2.addConstraint(Sketcher.Constraint("Horizontal", 7))
sketch2.addConstraint(Sketcher.Constraint("Vertical", 9))
sketch2.addConstraint(Sketcher.Constraint("Horizontal", 11))
sketch2.addConstraint(Sketcher.Constraint("Vertical", 12))
sketch2.addConstraint(Sketcher.Constraint("Horizontal", 13))
sketch2.addConstraint(Sketcher.Constraint("Vertical", 21))
sketch2.addConstraint(Sketcher.Constraint("Horizontal", 22))
sketch2.addConstraint(Sketcher.Constraint("Vertical", 23))
sketch2.addConstraint(Sketcher.Constraint("Horizontal", 31))
sketch2.addConstraint(Sketcher.Constraint("Vertical", 32))
sketch2.addConstraint(Sketcher.Constraint("Horizontal", 33))
sketch2.addConstraint(Sketcher.Constraint("Vertical", 35))
sketch2.addConstraint(Sketcher.Constraint("Horizontal", 37))
sketch2.addConstraint(Sketcher.Constraint("Vertical", 38))
sketch2.addConstraint(Sketcher.Constraint("Vertical", 41))
sketch2.addConstraint(Sketcher.Constraint("Horizontal", 42))
sketch2.addConstraint(Sketcher.Constraint("Vertical", 44))
sketch2.addConstraint(Sketcher.Constraint("Horizontal", 46))
sketch2.addConstraint(Sketcher.Constraint("Vertical", 48))
sketch2.addConstraint(Sketcher.Constraint("Horizontal", 50))
sketch2.addConstraint(Sketcher.Constraint("Vertical", 51))
sketch2.addConstraint(Sketcher.Constraint("Horizontal", 53))
sketch2.addConstraint(Sketcher.Constraint("Coincident", 27, 3, -1, 1))
sketch2.addConstraint(Sketcher.Constraint("Equal", 3, 5))
sketch2.addConstraint(Sketcher.Constraint("Equal", 8, 10))
sketch2.addConstraint(Sketcher.Constraint("Equal", 5, 14))
sketch2.addConstraint(Sketcher.Constraint("Equal", 14, 16))
sketch2.addConstraint(Sketcher.Constraint("Equal", 16, 18))
sketch2.addConstraint(Sketcher.Constraint("Equal", 18, 20))
sketch2.addConstraint(Sketcher.Constraint("Equal", 20, 24))
sketch2.addConstraint(Sketcher.Constraint("Equal", 24, 26))
sketch2.addConstraint(Sketcher.Constraint("Equal", 17, 27))
sketch2.addConstraint(Sketcher.Constraint("Equal", 26, 28))
sketch2.addConstraint(Sketcher.Constraint("Equal", 28, 30))
sketch2.addConstraint(Sketcher.Constraint("Equal", 10, 34))
sketch2.addConstraint(Sketcher.Constraint("Equal", 34, 36))
sketch2.addConstraint(Sketcher.Constraint("Equal", 30, 39))
sketch2.addConstraint(Sketcher.Constraint("Equal", 39, 40))
sketch2.addConstraint(Sketcher.Constraint("Equal", 40, 43))
sketch2.addConstraint(Sketcher.Constraint("Equal", 43, 45))
sketch2.addConstraint(Sketcher.Constraint("Equal", 45, 47))
sketch2.addConstraint(Sketcher.Constraint("Equal", 47, 49))
sketch2.addConstraint(Sketcher.Constraint("Equal", 52, 54))
sketch2.addConstraint(Sketcher.Constraint("PointOnObject", 17, 3, -1))
sketch2.addConstraint(Sketcher.Constraint("Perpendicular", 15, 25))
sketch2.addConstraint(Sketcher.Constraint("Perpendicular", 19, 29))
sketch2.addConstraint(Sketcher.Constraint("Horizontal", 20, 3, 24, 3))
sketch2.addConstraint(Sketcher.Constraint("Horizontal", 18, 3, 26, 3))
sketch2.addConstraint(Sketcher.Constraint("Horizontal", 16, 3, 28, 3))
sketch2.addConstraint(Sketcher.Constraint("Horizontal", 14, 3, 30, 3))
sketch2.addConstraint(Sketcher.Constraint("Horizontal", 10, 3, 34, 3))
sketch2.addConstraint(Sketcher.Constraint("Horizontal", 8, 3, 36, 3))
sketch2.addConstraint(Sketcher.Constraint("Horizontal", 43, 3, 49, 3))
sketch2.addConstraint(Sketcher.Constraint("Horizontal", 19, 2, 24, 2))
sketch2.addConstraint(Sketcher.Constraint("Vertical", 39, 3, 40, 3))
sketch2.addConstraint(Sketcher.Constraint("Vertical", 6, 2, 11, 2))
sketch2.addConstraint(Sketcher.Constraint("Vertical", 32, 2, 37, 2))
sketch2.addConstraint(Sketcher.Constraint("Equal", 13, 31))
sketch2.addConstraint(Sketcher.Constraint("Equal", 11, 33))
sketch2.addConstraint(Sketcher.Constraint("Equal", 4, 9))
sketch2.addConstraint(Sketcher.Constraint("Equal", 37, 41))
sketch2.addConstraint(Sketcher.Constraint("Equal", 35, 44))
sketch2.addConstraint(Sketcher.Constraint("Radius", 52, 3.0))
sketch2.addConstraint(Sketcher.Constraint("Radius", 3, 0.2))
sketch2.addConstraint(Sketcher.Constraint("Radius", 8, 0.3))
sketch2.addConstraint(Sketcher.Constraint("Radius", 17, 0.9))
sketch2.addConstraint(Sketcher.Constraint("DistanceX", 53, 1, 53, 2, 44.0))
sketch2.addConstraint(Sketcher.Constraint("DistanceY", 38, 1, 38, 2, 3.0))
sketch2.addConstraint(Sketcher.Constraint("Angle", 15, Q("-75 deg")))
sketch2.addConstraint(Sketcher.Constraint("DistanceX", 1, 2, 1, 1, 0.6))
sketch2.addConstraint(Sketcher.Constraint("DistanceX", 4, 2, 4, 1, 0.2))
sketch2.addConstraint(Sketcher.Constraint("DistanceX", 7, 2, 7, 1, 0.9))
sketch2.addConstraint(Sketcher.Constraint("DistanceX", 22, 2, 22, 1, 42.2))
sketch2.addConstraint(Sketcher.Constraint("DistanceX", 42, 2, 42, 1, 0.1))
sketch2.addConstraint(Sketcher.Constraint("DistanceX", 46, 2, 46, 1, 0.4))
sketch2.addConstraint(Sketcher.Constraint("DistanceX", 50, 2, 50, 1, 0.3))
sketch2.addConstraint(Sketcher.Constraint("DistanceY", 0, 1, 0, 2, 6.1))
sketch2.addConstraint(Sketcher.Constraint("DistanceY", 2, 1, 2, 2, 0.5))
sketch2.addConstraint(Sketcher.Constraint("DistanceY", 6, 2, 6, 1, 3.1))
sketch2.addConstraint(Sketcher.Constraint("DistanceY", 12, 2, 12, 1, 1.8))
sketch2.addConstraint(Sketcher.Constraint("DistanceY", -1, 1, 8, 3, 4.0))
sketch2.addConstraint(Sketcher.Constraint("DistanceY", 21, 2, -1, 1, 1.0))
sketch2.addConstraint(Sketcher.Constraint("DistanceX", -1, 1, 17, 3, 45.1))
sketch2.addConstraint(Sketcher.Constraint("DistanceX", 13, 2, 13, 1, 1.444869))
sketch2.addConstraint(Sketcher.Constraint("DistanceY", 21, 2, 21, 1, 1.127881))
pad2 = doc.addObject("PartDesign::Pad", "Pad001")
body2.addObject(pad2)
pad2.Profile = sketch2
pad2.Length = 80

doc.recompute()
